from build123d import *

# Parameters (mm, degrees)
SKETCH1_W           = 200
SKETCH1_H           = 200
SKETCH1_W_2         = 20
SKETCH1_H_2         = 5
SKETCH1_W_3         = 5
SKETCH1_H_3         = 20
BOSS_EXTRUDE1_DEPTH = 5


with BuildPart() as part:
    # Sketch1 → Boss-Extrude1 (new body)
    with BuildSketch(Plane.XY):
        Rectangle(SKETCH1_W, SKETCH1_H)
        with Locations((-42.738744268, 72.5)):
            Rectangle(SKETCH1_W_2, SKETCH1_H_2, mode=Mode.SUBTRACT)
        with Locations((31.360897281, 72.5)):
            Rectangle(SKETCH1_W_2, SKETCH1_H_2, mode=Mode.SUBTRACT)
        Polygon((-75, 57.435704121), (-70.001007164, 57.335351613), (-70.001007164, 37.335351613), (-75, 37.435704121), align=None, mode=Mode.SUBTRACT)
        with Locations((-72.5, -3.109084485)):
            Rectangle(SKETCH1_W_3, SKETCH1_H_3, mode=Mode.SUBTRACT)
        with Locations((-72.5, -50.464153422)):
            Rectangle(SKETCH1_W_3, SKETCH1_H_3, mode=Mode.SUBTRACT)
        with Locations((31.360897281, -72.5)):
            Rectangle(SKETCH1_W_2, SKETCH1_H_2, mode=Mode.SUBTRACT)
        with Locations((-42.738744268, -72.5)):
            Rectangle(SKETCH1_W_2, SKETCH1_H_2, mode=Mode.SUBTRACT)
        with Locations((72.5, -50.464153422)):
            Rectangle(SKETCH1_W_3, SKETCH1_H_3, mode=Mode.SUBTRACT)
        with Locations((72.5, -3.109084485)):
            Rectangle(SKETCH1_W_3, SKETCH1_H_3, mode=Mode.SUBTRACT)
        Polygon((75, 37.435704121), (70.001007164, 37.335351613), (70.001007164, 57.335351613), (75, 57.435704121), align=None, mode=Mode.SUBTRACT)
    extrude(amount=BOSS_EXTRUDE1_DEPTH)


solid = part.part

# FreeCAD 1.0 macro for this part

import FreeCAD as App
import Part
import Sketcher
Q = App.Units.Quantity

doc = App.newDocument("Part")
body = doc.addObject("PartDesign::Body", "Body")

sketch1 = body.newObject("Sketcher::SketchObject", "Sketch")
sketch1.AttachmentSupport = (doc.getObject("XY_Plane"), [""])
sketch1.MapMode = "FlatFace"
sketch1.addGeometry([
    Part.LineSegment(App.Vector(-100, 100, 0), App.Vector(-100, -100, 0)),
    Part.LineSegment(App.Vector(-100, -100, 0), App.Vector(100, -100, 0)),
    Part.LineSegment(App.Vector(100, -100, 0), App.Vector(100, 100, 0)),
    Part.LineSegment(App.Vector(100, 100, 0), App.Vector(-100, 100, 0)),
    Part.LineSegment(App.Vector(-32.738744, -75, 0), App.Vector(-52.738744, -75, 0)),
    Part.LineSegment(App.Vector(-52.738744, -75, 0), App.Vector(-52.738744, -70, 0)),
    Part.LineSegment(App.Vector(-52.738744, -70, 0), App.Vector(-32.738744, -70, 0)),
    Part.LineSegment(App.Vector(-32.738744, -70, 0), App.Vector(-32.738744, -75, 0)),
    Part.LineSegment(App.Vector(-70, -60.464153, 0), App.Vector(-75, -60.464153, 0)),
    Part.LineSegment(App.Vector(-75, -60.464153, 0), App.Vector(-75, -40.464153, 0)),
    Part.LineSegment(App.Vector(-75, -40.464153, 0), App.Vector(-70, -40.464153, 0)),
    Part.LineSegment(App.Vector(-70, -40.464153, 0), App.Vector(-70, -60.464153, 0)),
    Part.LineSegment(App.Vector(-70, -13.109084, 0), App.Vector(-75, -13.109084, 0)),
    Part.LineSegment(App.Vector(-75, -13.109084, 0), App.Vector(-75, 6.890916, 0)),
    Part.LineSegment(App.Vector(-75, 6.890916, 0), App.Vector(-70, 6.890916, 0)),
    Part.LineSegment(App.Vector(-70, 6.890916, 0), App.Vector(-70, -13.109084, 0)),
    Part.LineSegment(App.Vector(41.360897, -75, 0), App.Vector(21.360897, -75, 0)),
    Part.LineSegment(App.Vector(21.360897, -75, 0), App.Vector(21.360897, -70, 0)),
    Part.LineSegment(App.Vector(21.360897, -70, 0), App.Vector(41.360897, -70, 0)),
    Part.LineSegment(App.Vector(41.360897, -70, 0), App.Vector(41.360897, -75, 0)),
    Part.LineSegment(App.Vector(75, -60.464153, 0), App.Vector(70, -60.464153, 0)),
    Part.LineSegment(App.Vector(70, -60.464153, 0), App.Vector(70, -40.464153, 0)),
    Part.LineSegment(App.Vector(70, -40.464153, 0), App.Vector(75, -40.464153, 0)),
    Part.LineSegment(App.Vector(75, -40.464153, 0), App.Vector(75, -60.464153, 0)),
    Part.LineSegment(App.Vector(75, -13.109084, 0), App.Vector(70, -13.109084, 0)),
    Part.LineSegment(App.Vector(70, -13.109084, 0), App.Vector(70, 6.890916, 0)),
    Part.LineSegment(App.Vector(70, 6.890916, 0), App.Vector(75, 6.890916, 0)),
    Part.LineSegment(App.Vector(75, 6.890916, 0), App.Vector(75, -13.109084, 0)),
    Part.LineSegment(App.Vector(-75, 37.435704, 0), App.Vector(-75, 57.435704, 0)),
    Part.LineSegment(App.Vector(-75, 57.435704, 0), App.Vector(-70.001007, 57.335352, 0)),
    Part.LineSegment(App.Vector(-70.001007, 57.335352, 0), App.Vector(-70.001007, 37.335352, 0)),
    Part.LineSegment(App.Vector(-70.001007, 37.335352, 0), App.Vector(-75, 37.435704, 0)),
    Part.LineSegment(App.Vector(-32.738744, 70, 0), App.Vector(-52.738744, 70, 0)),
    Part.LineSegment(App.Vector(-52.738744, 70, 0), App.Vector(-52.738744, 75, 0)),
    Part.LineSegment(App.Vector(-52.738744, 75, 0), App.Vector(-32.738744, 75, 0)),
    Part.LineSegment(App.Vector(-32.738744, 75, 0), App.Vector(-32.738744, 70, 0)),
    Part.LineSegment(App.Vector(41.360897, 70, 0), App.Vector(21.360897, 70, 0)),
    Part.LineSegment(App.Vector(21.360897, 70, 0), App.Vector(21.360897, 75, 0)),
    Part.LineSegment(App.Vector(21.360897, 75, 0), App.Vector(41.360897, 75, 0)),
    Part.LineSegment(App.Vector(41.360897, 75, 0), App.Vector(41.360897, 70, 0)),
    Part.LineSegment(App.Vector(75, 57.435704, 0), App.Vector(75, 37.435704, 0)),
    Part.LineSegment(App.Vector(75, 37.435704, 0), App.Vector(70.001007, 37.335352, 0)),
    Part.LineSegment(App.Vector(70.001007, 37.335352, 0), App.Vector(70.001007, 57.335352, 0)),
    Part.LineSegment(App.Vector(70.001007, 57.335352, 0), App.Vector(75, 57.435704, 0)),
], False)
sketch1.addConstraint([
    Sketcher.Constraint("Coincident", 0, 2, 1, 1),
    Sketcher.Constraint("Coincident", 1, 2, 2, 1),
    Sketcher.Constraint("Coincident", 2, 2, 3, 1),
    Sketcher.Constraint("Coincident", 3, 2, 0, 1),
    Sketcher.Constraint("Coincident", 4, 2, 5, 1),
    Sketcher.Constraint("Coincident", 5, 2, 6, 1),
    Sketcher.Constraint("Coincident", 6, 2, 7, 1),
    Sketcher.Constraint("Coincident", 7, 2, 4, 1),
    Sketcher.Constraint("Coincident", 8, 2, 9, 1),
    Sketcher.Constraint("Coincident", 9, 2, 10, 1),
    Sketcher.Constraint("Coincident", 10, 2, 11, 1),
    Sketcher.Constraint("Coincident", 11, 2, 8, 1),
    Sketcher.Constraint("Coincident", 12, 2, 13, 1),
    Sketcher.Constraint("Coincident", 13, 2, 14, 1),
    Sketcher.Constraint("Coincident", 14, 2, 15, 1),
    Sketcher.Constraint("Coincident", 15, 2, 12, 1),
    Sketcher.Constraint("Coincident", 16, 2, 17, 1),
    Sketcher.Constraint("Coincident", 17, 2, 18, 1),
    Sketcher.Constraint("Coincident", 18, 2, 19, 1),
    Sketcher.Constraint("Coincident", 19, 2, 16, 1),
    Sketcher.Constraint("Coincident", 20, 2, 21, 1),
    Sketcher.Constraint("Coincident", 21, 2, 22, 1),
    Sketcher.Constraint("Coincident", 22, 2, 23, 1),
    Sketcher.Constraint("Coincident", 23, 2, 20, 1),
    Sketcher.Constraint("Coincident", 24, 2, 25, 1),
    Sketcher.Constraint("Coincident", 25, 2, 26, 1),
    Sketcher.Constraint("Coincident", 26, 2, 27, 1),
    Sketcher.Constraint("Coincident", 27, 2, 24, 1),
    Sketcher.Constraint("Coincident", 28, 2, 29, 1),
    Sketcher.Constraint("Coincident", 29, 2, 30, 1),
    Sketcher.Constraint("Coincident", 30, 2, 31, 1),
    Sketcher.Constraint("Coincident", 31, 2, 28, 1),
    Sketcher.Constraint("Coincident", 32, 2, 33, 1),
    Sketcher.Constraint("Coincident", 33, 2, 34, 1),
    Sketcher.Constraint("Coincident", 34, 2, 35, 1),
    Sketcher.Constraint("Coincident", 35, 2, 32, 1),
    Sketcher.Constraint("Coincident", 36, 2, 37, 1),
    Sketcher.Constraint("Coincident", 37, 2, 38, 1),
    Sketcher.Constraint("Coincident", 38, 2, 39, 1),
    Sketcher.Constraint("Coincident", 39, 2, 36, 1),
    Sketcher.Constraint("Coincident", 40, 2, 41, 1),
    Sketcher.Constraint("Coincident", 41, 2, 42, 1),
    Sketcher.Constraint("Coincident", 42, 2, 43, 1),
    Sketcher.Constraint("Coincident", 43, 2, 40, 1),
    Sketcher.Constraint("Vertical", 0),
    Sketcher.Constraint("Horizontal", 1),
    Sketcher.Constraint("Vertical", 2),
    Sketcher.Constraint("Horizontal", 3),
    Sketcher.Constraint("Horizontal", 4),
    Sketcher.Constraint("Vertical", 5),
    Sketcher.Constraint("Horizontal", 6),
    Sketcher.Constraint("Vertical", 7),
    Sketcher.Constraint("Horizontal", 8),
    Sketcher.Constraint("Vertical", 9),
    Sketcher.Constraint("Horizontal", 10),
    Sketcher.Constraint("Vertical", 11),
    Sketcher.Constraint("Horizontal", 12),
    Sketcher.Constraint("Vertical", 13),
    Sketcher.Constraint("Horizontal", 14),
    Sketcher.Constraint("Vertical", 15),
    Sketcher.Constraint("Horizontal", 16),
    Sketcher.Constraint("Vertical", 17),
    Sketcher.Constraint("Horizontal", 18),
    Sketcher.Constraint("Vertical", 19),
    Sketcher.Constraint("Horizontal", 20),
    Sketcher.Constraint("Vertical", 21),
    Sketcher.Constraint("Horizontal", 22),
    Sketcher.Constraint("Vertical", 23),
    Sketcher.Constraint("Horizontal", 24),
    Sketcher.Constraint("Vertical", 25),
    Sketcher.Constraint("Horizontal", 26),
    Sketcher.Constraint("Vertical", 27),
    Sketcher.Constraint("Vertical", 28),
    Sketcher.Constraint("Vertical", 30),
    Sketcher.Constraint("Horizontal", 32),
    Sketcher.Constraint("Vertical", 33),
    Sketcher.Constraint("Horizontal", 34),
    Sketcher.Constraint("Vertical", 35),
    Sketcher.Constraint("Horizontal", 36),
    Sketcher.Constraint("Vertical", 37),
    Sketcher.Constraint("Horizontal", 38),
    Sketcher.Constraint("Vertical", 39),
    Sketcher.Constraint("Vertical", 40),
    Sketcher.Constraint("Vertical", 42),
    Sketcher.Constraint("DistanceX", 1, 1, 1, 2, Q("200 mm")),
    Sketcher.Constraint("DistanceX", 4, 2, 4, 1, Q("20 mm")),
    Sketcher.Constraint("DistanceX", 8, 2, 8, 1, Q("5 mm")),
    Sketcher.Constraint("DistanceX", 12, 2, 12, 1, Q("5 mm")),
    Sketcher.Constraint("DistanceX", 16, 2, 16, 1, Q("20 mm")),
    Sketcher.Constraint("DistanceX", 20, 2, 20, 1, Q("5 mm")),
    Sketcher.Constraint("DistanceX", 24, 2, 24, 1, Q("5 mm")),
    Sketcher.Constraint("DistanceX", 32, 2, 32, 1, Q("20 mm")),
    Sketcher.Constraint("DistanceX", 36, 2, 36, 1, Q("20 mm")),
    Sketcher.Constraint("DistanceY", 0, 2, 0, 1, Q("200 mm")),
    Sketcher.Constraint("DistanceY", 5, 1, 5, 2, Q("5 mm")),
    Sketcher.Constraint("DistanceY", 9, 1, 9, 2, Q("20 mm")),
    Sketcher.Constraint("DistanceY", 13, 1, 13, 2, Q("20 mm")),
    Sketcher.Constraint("DistanceY", 17, 1, 17, 2, Q("5 mm")),
    Sketcher.Constraint("DistanceY", 21, 1, 21, 2, Q("20 mm")),
    Sketcher.Constraint("DistanceY", 25, 1, 25, 2, Q("20 mm")),
    Sketcher.Constraint("DistanceY", 28, 1, 28, 2, Q("20 mm")),
    Sketcher.Constraint("DistanceY", 30, 2, 30, 1, Q("20 mm")),
    Sketcher.Constraint("DistanceY", 33, 1, 33, 2, Q("5 mm")),
    Sketcher.Constraint("DistanceY", 37, 1, 37, 2, Q("5 mm")),
    Sketcher.Constraint("DistanceY", 40, 2, 40, 1, Q("20 mm")),
    Sketcher.Constraint("DistanceY", 42, 1, 42, 2, Q("20 mm")),
    Sketcher.Constraint("Distance", 29, Q("5 mm")),
    Sketcher.Constraint("Distance", 41, Q("5 mm")),
    Sketcher.Constraint("DistanceX", 0, 2, -1, 1, Q("100 mm")),
    Sketcher.Constraint("DistanceY", 0, 2, -1, 1, Q("100 mm")),
    Sketcher.Constraint("DistanceY", 4, 2, -1, 1, Q("75 mm")),
    Sketcher.Constraint("DistanceX", 8, 2, -1, 1, Q("75 mm")),
    Sketcher.Constraint("DistanceX", 12, 2, -1, 1, Q("75 mm")),
    Sketcher.Constraint("DistanceY", 16, 2, -1, 1, Q("75 mm")),
    Sketcher.Constraint("DistanceX", -1, 1, 20, 2, Q("70 mm")),
    Sketcher.Constraint("DistanceX", -1, 1, 24, 2, Q("70 mm")),
    Sketcher.Constraint("DistanceX", 28, 2, -1, 1, Q("75 mm")),
    Sketcher.Constraint("DistanceY", -1, 1, 32, 2, Q("70 mm")),
    Sketcher.Constraint("DistanceY", -1, 1, 36, 2, Q("70 mm")),
    Sketcher.Constraint("DistanceX", -1, 1, 40, 2, Q("75 mm")),
    Sketcher.Constraint("DistanceY", -1, 1, 29, 2, Q("57.335352 mm")),
    Sketcher.Constraint("DistanceY", -1, 1, 41, 2, Q("37.335352 mm")),
    Sketcher.Constraint("DistanceY", 9, 2, 12, 2, Q("27.355069 mm")),
    Sketcher.Constraint("DistanceX", 7, 2, 16, 2, Q("54.099642 mm")),
    Sketcher.Constraint("DistanceY", 21, 2, 24, 2, Q("27.355069 mm")),
    Sketcher.Constraint("DistanceY", 13, 2, 28, 2, Q("50.544789 mm")),
    Sketcher.Constraint("DistanceX", 35, 2, 36, 2, Q("54.099642 mm")),
    Sketcher.Constraint("DistanceY", 26, 2, 40, 2, Q("30.544789 mm")),
    Sketcher.Constraint("DistanceX", 39, 2, 41, 2, Q("28.64011 mm")),
    Sketcher.Constraint("DistanceX", 4, 2, -1, 1, Q("52.738744 mm")),
    Sketcher.Constraint("DistanceY", 8, 2, -1, 1, Q("60.464153 mm")),
    Sketcher.Constraint("DistanceY", 20, 2, -1, 1, Q("60.464153 mm")),
])
pad1 = body.newObject("PartDesign::Pad", "Pad")
pad1.Profile = sketch1
pad1.Length = 5

doc.recompute()
